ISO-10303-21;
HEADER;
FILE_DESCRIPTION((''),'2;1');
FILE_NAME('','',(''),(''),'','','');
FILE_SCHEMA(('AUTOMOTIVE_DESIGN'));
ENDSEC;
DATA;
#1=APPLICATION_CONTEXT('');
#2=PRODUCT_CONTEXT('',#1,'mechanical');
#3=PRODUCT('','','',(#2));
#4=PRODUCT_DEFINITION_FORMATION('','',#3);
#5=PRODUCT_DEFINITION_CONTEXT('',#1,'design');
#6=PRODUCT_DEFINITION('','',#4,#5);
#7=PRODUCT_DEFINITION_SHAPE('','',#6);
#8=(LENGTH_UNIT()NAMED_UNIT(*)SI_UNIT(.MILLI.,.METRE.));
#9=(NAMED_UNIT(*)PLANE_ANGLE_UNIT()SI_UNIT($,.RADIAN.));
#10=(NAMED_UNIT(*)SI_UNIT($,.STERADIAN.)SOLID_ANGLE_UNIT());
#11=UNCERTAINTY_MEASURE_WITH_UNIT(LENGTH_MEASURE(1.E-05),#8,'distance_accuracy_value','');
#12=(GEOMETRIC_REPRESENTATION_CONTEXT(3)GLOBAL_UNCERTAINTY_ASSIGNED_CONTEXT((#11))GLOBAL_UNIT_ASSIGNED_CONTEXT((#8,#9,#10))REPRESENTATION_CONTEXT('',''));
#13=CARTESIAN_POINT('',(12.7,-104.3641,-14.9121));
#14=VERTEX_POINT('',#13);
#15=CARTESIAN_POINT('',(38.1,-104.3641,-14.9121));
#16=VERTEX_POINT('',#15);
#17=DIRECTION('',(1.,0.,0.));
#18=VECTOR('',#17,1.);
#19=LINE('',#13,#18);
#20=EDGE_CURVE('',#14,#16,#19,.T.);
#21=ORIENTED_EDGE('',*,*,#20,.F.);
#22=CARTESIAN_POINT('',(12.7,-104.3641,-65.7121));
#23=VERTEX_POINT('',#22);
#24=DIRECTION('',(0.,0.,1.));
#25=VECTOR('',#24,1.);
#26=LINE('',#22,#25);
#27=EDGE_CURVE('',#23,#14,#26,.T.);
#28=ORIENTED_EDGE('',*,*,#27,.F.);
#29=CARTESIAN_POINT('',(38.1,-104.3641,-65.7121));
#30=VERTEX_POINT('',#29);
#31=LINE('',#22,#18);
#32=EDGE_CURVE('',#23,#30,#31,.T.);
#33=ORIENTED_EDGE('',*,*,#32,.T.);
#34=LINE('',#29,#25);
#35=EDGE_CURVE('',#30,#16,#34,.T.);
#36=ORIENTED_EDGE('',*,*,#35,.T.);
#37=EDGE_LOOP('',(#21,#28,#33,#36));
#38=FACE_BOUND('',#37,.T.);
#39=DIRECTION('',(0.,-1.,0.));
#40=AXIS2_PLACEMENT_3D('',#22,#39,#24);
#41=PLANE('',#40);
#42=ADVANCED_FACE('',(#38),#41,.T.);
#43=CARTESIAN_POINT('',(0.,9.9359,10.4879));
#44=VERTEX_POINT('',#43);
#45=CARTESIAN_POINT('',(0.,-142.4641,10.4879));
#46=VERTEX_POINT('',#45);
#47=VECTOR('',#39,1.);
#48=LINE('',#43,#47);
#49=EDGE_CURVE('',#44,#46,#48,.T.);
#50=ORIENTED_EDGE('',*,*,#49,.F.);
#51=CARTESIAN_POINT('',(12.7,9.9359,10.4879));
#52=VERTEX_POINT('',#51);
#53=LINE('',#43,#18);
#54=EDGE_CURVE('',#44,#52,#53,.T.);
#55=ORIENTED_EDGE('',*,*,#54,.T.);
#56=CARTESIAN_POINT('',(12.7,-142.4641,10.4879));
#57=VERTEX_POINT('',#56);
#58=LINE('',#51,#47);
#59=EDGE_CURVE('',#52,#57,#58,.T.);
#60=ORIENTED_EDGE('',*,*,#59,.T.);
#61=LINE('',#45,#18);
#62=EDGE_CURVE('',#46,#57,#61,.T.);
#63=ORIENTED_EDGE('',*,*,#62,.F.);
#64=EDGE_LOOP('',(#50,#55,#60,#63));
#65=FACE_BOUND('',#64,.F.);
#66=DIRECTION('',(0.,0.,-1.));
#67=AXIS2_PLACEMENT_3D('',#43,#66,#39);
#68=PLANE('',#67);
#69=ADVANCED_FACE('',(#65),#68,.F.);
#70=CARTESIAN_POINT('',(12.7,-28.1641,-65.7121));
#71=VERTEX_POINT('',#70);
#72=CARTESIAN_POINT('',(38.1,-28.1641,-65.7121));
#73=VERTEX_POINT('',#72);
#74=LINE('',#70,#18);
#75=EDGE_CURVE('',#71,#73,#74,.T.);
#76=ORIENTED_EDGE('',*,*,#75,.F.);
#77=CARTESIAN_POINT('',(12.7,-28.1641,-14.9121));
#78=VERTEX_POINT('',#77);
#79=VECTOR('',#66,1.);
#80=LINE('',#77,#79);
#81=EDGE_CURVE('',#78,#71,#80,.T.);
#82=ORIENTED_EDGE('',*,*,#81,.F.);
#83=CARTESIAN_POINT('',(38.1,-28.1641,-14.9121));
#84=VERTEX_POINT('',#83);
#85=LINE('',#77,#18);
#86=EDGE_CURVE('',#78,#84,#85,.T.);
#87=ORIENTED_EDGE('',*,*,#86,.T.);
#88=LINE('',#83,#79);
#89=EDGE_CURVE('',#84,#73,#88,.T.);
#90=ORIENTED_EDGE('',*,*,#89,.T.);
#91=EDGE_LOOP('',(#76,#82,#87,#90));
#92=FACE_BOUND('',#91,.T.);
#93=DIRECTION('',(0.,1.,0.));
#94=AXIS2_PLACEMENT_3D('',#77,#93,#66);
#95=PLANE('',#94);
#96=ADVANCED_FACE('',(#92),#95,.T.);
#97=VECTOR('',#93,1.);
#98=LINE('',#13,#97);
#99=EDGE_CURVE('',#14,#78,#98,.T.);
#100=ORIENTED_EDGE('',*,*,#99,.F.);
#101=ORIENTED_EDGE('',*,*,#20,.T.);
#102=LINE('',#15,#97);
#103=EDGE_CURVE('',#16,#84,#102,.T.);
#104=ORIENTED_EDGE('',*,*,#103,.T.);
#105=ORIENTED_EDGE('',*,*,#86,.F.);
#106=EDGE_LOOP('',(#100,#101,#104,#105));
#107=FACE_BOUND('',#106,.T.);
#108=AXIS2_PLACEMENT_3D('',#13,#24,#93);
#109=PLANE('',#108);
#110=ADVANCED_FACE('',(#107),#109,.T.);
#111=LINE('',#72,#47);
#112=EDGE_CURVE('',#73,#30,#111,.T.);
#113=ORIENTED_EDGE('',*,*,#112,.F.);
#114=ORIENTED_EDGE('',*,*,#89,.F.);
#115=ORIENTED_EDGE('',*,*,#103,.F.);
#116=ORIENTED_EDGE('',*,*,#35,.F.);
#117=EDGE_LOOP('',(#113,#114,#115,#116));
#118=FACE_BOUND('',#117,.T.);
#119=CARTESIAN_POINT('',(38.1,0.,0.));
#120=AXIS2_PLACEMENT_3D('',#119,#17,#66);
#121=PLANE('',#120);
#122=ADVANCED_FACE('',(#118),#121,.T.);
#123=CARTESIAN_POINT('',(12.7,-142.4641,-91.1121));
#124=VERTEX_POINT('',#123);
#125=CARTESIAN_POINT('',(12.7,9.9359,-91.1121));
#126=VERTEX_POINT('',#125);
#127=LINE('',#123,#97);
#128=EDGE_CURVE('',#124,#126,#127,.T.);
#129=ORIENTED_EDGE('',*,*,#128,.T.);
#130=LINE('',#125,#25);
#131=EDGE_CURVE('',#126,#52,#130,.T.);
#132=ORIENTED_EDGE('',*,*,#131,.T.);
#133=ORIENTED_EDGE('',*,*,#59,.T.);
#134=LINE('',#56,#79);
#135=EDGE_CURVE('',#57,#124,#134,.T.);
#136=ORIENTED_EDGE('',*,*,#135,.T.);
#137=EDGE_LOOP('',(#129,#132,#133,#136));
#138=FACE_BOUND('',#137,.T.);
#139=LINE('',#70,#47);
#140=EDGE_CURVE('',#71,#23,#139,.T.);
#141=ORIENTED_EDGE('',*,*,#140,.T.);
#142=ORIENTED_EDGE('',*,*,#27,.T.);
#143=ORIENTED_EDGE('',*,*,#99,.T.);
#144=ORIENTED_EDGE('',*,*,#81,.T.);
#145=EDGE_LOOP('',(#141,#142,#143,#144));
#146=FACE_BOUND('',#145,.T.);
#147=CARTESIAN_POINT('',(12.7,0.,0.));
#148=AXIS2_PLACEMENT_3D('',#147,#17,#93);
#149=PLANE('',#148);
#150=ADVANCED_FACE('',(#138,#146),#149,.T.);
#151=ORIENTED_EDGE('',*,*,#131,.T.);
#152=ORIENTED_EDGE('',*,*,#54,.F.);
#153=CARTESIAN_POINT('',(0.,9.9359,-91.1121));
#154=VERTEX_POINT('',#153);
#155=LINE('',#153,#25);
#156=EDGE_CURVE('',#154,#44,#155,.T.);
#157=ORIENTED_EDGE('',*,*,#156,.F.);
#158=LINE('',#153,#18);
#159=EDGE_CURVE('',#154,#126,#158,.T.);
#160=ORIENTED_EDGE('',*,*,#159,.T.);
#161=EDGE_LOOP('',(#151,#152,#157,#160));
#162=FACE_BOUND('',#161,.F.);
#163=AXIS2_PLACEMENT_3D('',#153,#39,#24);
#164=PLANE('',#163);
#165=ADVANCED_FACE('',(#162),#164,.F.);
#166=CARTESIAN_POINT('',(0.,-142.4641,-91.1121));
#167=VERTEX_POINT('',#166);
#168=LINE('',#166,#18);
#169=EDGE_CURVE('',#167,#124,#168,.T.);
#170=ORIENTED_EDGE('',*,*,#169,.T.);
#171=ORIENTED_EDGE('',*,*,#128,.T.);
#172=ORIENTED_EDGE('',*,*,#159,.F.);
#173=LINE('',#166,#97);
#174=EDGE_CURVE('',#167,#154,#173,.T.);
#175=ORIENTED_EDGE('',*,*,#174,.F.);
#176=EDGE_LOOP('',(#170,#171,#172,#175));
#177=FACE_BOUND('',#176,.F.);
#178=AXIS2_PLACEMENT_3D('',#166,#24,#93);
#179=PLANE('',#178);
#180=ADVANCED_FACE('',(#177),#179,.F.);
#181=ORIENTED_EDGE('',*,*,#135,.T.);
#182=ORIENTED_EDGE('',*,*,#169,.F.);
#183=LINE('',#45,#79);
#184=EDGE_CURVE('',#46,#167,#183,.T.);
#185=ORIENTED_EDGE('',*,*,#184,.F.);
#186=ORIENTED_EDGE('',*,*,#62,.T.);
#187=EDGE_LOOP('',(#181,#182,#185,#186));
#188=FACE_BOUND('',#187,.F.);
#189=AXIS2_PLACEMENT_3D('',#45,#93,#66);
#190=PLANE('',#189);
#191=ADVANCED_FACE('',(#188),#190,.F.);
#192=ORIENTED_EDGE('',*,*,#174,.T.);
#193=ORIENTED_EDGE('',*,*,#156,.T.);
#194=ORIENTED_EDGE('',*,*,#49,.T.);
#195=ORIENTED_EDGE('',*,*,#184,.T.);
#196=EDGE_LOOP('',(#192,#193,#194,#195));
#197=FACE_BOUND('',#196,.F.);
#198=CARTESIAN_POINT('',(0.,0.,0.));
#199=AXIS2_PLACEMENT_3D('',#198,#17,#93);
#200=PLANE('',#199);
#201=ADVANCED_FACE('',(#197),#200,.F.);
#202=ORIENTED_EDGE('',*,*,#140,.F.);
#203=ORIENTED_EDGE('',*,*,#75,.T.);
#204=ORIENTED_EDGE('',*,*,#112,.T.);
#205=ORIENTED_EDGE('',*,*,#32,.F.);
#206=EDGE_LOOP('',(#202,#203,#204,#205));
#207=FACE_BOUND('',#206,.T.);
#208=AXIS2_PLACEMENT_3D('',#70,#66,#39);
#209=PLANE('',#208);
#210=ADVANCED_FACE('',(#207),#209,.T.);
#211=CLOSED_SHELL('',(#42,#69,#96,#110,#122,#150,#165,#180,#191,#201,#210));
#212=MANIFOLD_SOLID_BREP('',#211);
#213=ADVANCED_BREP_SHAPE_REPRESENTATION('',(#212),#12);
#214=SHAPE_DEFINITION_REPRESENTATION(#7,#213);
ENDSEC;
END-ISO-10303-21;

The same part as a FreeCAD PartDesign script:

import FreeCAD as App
import Part
import Sketcher
Q = App.Units.Quantity

doc = App.newDocument("Part")
body = doc.addObject("PartDesign::Body", "Body")

sketch1 = body.newObject("Sketcher::SketchObject", "Sketch")
sketch1.AttachmentSupport = (doc.getObject("YZ_Plane"), [""])
sketch1.MapMode = "FlatFace"
sketch1.addGeometry(Part.LineSegment(App.Vector(10, -91, 0), App.Vector(10, 10, 0)), False)
sketch1.addGeometry(Part.LineSegment(App.Vector(10, 10, 0), App.Vector(-142, 10, 0)), False)
sketch1.addGeometry(Part.LineSegment(App.Vector(-142, 10, 0), App.Vector(-142, -91, 0)), False)
sketch1.addGeometry(Part.LineSegment(App.Vector(-142, -91, 0), App.Vector(10, -91, 0)), False)
sketch1.addConstraint(Sketcher.Constraint("Coincident", 0, 2, 1, 1))
sketch1.addConstraint(Sketcher.Constraint("Coincident", 1, 2, 2, 1))
sketch1.addConstraint(Sketcher.Constraint("Coincident", 2, 2, 3, 1))
sketch1.addConstraint(Sketcher.Constraint("Coincident", 3, 2, 0, 1))
sketch1.addConstraint(Sketcher.Constraint("Vertical", 0))
sketch1.addConstraint(Sketcher.Constraint("Horizontal", 1))
sketch1.addConstraint(Sketcher.Constraint("Vertical", 2))
sketch1.addConstraint(Sketcher.Constraint("Horizontal", 3))
sketch1.addConstraint(Sketcher.Constraint("DistanceX", 1, 2, 1, 1, Q("6 in")))
sketch1.addConstraint(Sketcher.Constraint("DistanceY", 0, 1, 0, 2, Q("4 in")))
sketch1.addConstraint(Sketcher.Constraint("DistanceY", -1, 1, 0, 2, Q("0.4129 in")))
sketch1.addConstraint(Sketcher.Constraint("DistanceX", -1, 1, 0, 2, 9.936))
pad1 = body.newObject("PartDesign::Pad", "Pad")
pad1.Profile = sketch1
pad1.Length = Q("0.5 in")

sketch2 = body.newObject("Sketcher::SketchObject", "Sketch001")
sketch2.AttachmentSupport = (doc.getObject("YZ_Plane"), [""])
sketch2.MapMode = "FlatFace"
sketch2.AttachmentOffset = App.Placement(App.Vector(0, 0, 0.5 * 25.4), App.Rotation())
sketch2.addGeometry(Part.LineSegment(App.Vector(-28, -66, 0), App.Vector(-28, -15, 0)), False)
sketch2.addGeometry(Part.LineSegment(App.Vector(-28, -15, 0), App.Vector(-104, -15, 0)), False)
sketch2.addGeometry(Part.LineSegment(App.Vector(-104, -15, 0), App.Vector(-104, -66, 0)), False)
sketch2.addGeometry(Part.LineSegment(App.Vector(-104, -66, 0), App.Vector(-28, -66, 0)), False)
sketch2.addConstraint(Sketcher.Constraint("Coincident", 0, 2, 1, 1))
sketch2.addConstraint(Sketcher.Constraint("Coincident", 1, 2, 2, 1))
sketch2.addConstraint(Sketcher.Constraint("Coincident", 2, 2, 3, 1))
sketch2.addConstraint(Sketcher.Constraint("Coincident", 3, 2, 0, 1))
sketch2.addConstraint(Sketcher.Constraint("Vertical", 0))
sketch2.addConstraint(Sketcher.Constraint("Horizontal", 1))
sketch2.addConstraint(Sketcher.Constraint("Vertical", 2))
sketch2.addConstraint(Sketcher.Constraint("Horizontal", 3))
sketch2.addConstraint(Sketcher.Constraint("DistanceX", 1, 2, 1, 1, Q("3 in")))
sketch2.addConstraint(Sketcher.Constraint("DistanceY", 0, 1, 0, 2, Q("2 in")))
sketch2.addConstraint(Sketcher.Constraint("DistanceY", 0, 2, -1, 1, Q("0.5871 in")))
sketch2.addConstraint(Sketcher.Constraint("DistanceX", 0, 2, -1, 1, 28.164))
pad2 = body.newObject("PartDesign::Pad", "Pad001")
pad2.Profile = sketch2
pad2.Length = Q("1 in")

doc.recompute()
